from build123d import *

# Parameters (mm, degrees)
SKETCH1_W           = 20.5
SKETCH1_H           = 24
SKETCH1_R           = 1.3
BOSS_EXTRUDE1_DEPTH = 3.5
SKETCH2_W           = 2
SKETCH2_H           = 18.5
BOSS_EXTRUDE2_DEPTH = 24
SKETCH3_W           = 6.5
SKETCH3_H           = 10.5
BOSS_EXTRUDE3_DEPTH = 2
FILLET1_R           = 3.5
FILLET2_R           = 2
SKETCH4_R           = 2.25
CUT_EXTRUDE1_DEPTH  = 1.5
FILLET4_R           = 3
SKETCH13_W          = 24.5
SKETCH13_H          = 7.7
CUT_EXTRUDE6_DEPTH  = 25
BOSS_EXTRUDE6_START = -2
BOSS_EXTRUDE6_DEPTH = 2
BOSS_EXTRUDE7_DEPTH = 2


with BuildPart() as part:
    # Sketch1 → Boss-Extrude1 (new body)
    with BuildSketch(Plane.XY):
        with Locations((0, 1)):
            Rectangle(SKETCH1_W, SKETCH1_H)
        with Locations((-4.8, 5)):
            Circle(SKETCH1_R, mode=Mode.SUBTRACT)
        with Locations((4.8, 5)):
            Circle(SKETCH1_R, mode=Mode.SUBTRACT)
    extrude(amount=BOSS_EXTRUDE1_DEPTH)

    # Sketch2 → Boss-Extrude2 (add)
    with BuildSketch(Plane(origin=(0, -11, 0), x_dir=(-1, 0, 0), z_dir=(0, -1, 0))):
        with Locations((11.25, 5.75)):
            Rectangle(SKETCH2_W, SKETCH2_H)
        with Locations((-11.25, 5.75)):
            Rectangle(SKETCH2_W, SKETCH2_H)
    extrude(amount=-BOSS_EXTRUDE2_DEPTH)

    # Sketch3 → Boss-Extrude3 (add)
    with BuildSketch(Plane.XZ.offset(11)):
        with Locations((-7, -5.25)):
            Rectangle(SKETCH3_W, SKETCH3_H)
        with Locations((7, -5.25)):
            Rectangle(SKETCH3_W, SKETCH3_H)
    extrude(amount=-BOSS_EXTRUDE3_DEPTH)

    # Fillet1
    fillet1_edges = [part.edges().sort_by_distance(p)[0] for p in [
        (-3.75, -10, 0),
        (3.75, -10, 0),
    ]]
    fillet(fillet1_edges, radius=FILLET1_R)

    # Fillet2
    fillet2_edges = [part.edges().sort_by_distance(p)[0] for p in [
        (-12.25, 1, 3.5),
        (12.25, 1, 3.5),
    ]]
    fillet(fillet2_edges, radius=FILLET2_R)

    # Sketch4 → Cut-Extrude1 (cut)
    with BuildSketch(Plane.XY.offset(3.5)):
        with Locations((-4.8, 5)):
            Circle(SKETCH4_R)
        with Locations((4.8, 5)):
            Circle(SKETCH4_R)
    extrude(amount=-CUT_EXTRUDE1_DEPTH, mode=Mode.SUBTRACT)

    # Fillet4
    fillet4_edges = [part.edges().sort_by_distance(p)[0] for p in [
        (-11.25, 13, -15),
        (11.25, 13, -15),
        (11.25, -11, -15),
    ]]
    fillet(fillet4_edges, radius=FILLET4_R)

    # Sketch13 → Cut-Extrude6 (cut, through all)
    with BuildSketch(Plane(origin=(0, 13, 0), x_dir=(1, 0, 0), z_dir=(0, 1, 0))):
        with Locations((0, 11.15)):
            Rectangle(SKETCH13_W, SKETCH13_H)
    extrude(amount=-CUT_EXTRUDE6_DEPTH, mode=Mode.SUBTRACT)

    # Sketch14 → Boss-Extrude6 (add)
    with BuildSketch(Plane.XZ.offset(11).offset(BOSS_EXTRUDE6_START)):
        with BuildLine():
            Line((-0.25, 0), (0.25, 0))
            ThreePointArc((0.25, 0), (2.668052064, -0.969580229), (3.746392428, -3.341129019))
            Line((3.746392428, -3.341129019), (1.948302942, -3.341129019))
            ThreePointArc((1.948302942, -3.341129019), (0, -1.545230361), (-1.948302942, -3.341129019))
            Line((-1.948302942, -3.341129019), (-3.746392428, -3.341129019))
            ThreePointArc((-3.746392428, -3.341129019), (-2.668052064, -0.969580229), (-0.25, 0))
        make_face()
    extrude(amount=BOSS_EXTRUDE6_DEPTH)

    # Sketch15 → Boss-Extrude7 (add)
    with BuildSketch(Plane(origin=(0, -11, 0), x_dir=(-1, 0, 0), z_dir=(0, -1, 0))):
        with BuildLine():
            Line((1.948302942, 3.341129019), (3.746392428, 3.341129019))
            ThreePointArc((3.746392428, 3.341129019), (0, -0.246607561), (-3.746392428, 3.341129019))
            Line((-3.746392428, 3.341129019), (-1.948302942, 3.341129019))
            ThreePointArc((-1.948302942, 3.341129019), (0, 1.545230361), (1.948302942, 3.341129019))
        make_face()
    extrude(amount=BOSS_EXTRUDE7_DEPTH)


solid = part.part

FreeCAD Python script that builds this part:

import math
import FreeCAD as App
import Part
import Sketcher
from FreeCAD import Vector
Q = App.Units.Quantity


def edges_at(feature, points):
    """Names of the edges that pass closest to the given points."""
    edges = feature.Shape.Edges
    near = lambda p: min(range(len(edges)), key=lambda i: edges[i].distToShape(Part.Vertex(*p))[0])
    return sorted({f"Edge{near(p) + 1}" for p in points})

doc = App.newDocument("Part")
body = doc.addObject("PartDesign::Body", "Body")

# Sketch on XY plane
sketch1 = doc.addObject("Sketcher::SketchObject", "Sketch")
body.addObject(sketch1)
sketch1.AttachmentSupport = (doc.XY_Plane, [""])
sketch1.MapMode = "FlatFace"
sketch1.addGeometry(Part.LineSegment(Vector(-10.2, 13, 0), Vector(-10.2, -11, 0)), False)
sketch1.addGeometry(Part.LineSegment(Vector(-10.2, -11, 0), Vector(10.2, -11, 0)), False)
sketch1.addGeometry(Part.LineSegment(Vector(10.2, -11, 0), Vector(10.2, 13, 0)), False)
sketch1.addGeometry(Part.LineSegment(Vector(10.2, 13, 0), Vector(-10.2, 13, 0)), False)
sketch1.addGeometry(Part.Circle(Vector(-4.8, 5, 0), Vector(0, 0, 1), 1.3), False)
sketch1.addGeometry(Part.Circle(Vector(4.8, 5, 0), Vector(0, 0, 1), 1.3), False)
sketch1.addConstraint(Sketcher.Constraint("Coincident", 0, 2, 1, 1))
sketch1.addConstraint(Sketcher.Constraint("Coincident", 1, 2, 2, 1))
sketch1.addConstraint(Sketcher.Constraint("Coincident", 2, 2, 3, 1))
sketch1.addConstraint(Sketcher.Constraint("Coincident", 3, 2, 0, 1))
sketch1.addConstraint(Sketcher.Constraint("Vertical", 0))
sketch1.addConstraint(Sketcher.Constraint("Horizontal", 1))
sketch1.addConstraint(Sketcher.Constraint("Vertical", 2))
sketch1.addConstraint(Sketcher.Constraint("Horizontal", 3))
sketch1.addConstraint(Sketcher.Constraint("Equal", 4, 5))
sketch1.addConstraint(Sketcher.Constraint("Symmetric", 4, 3, 5, 3, -2))
sketch1.addConstraint(Sketcher.Constraint("Diameter", 4, Q("2.6 mm")))
sketch1.addConstraint(Sketcher.Constraint("DistanceY", 0, 2, 0, 1, Q("24 mm")))
sketch1.addConstraint(Sketcher.Constraint("DistanceX", 1, 1, 1, 2, Q("20.5 mm")))
sketch1.addConstraint(Sketcher.Constraint("DistanceY", -1, 1, 4, 3, Q("5 mm")))
sketch1.addConstraint(Sketcher.Constraint("DistanceY", 0, 2, -1, 1, Q("11 mm")))
sketch1.addConstraint(Sketcher.Constraint("DistanceX", 4, 3, -1, 1, Q("4.8 mm")))
sketch1.addConstraint(Sketcher.Constraint("DistanceX", 0, 2, -1, 1, Q("10.25 mm")))
pad1 = doc.addObject("PartDesign::Pad", "Pad")
body.addObject(pad1)
pad1.Profile = sketch1
pad1.Length = 3.5

# Sketch on XZ plane
sketch2 = doc.addObject("Sketcher::SketchObject", "Sketch001")
body.addObject(sketch2)
sketch2.AttachmentSupport = (doc.XZ_Plane, [""])
sketch2.MapMode = "FlatFace"
sketch2.AttachmentOffset = App.Placement(Vector(0, 0, 11), App.Rotation())
sketch2.addGeometry(Part.LineSegment(Vector(-10.2, -15, 0), Vector(-10.2, 3.5, 0)), False)
sketch2.addGeometry(Part.LineSegment(Vector(-10.2, 3.5, 0), Vector(-12.2, 3.5, 0)), False)
sketch2.addGeometry(Part.LineSegment(Vector(-12.2, 3.5, 0), Vector(-12.2, -15, 0)), False)
sketch2.addGeometry(Part.LineSegment(Vector(-12.2, -15, 0), Vector(-10.2, -15, 0)), False)
sketch2.addGeometry(Part.LineSegment(Vector(12.2, -15, 0), Vector(12.2, 3.5, 0)), False)
sketch2.addGeometry(Part.LineSegment(Vector(12.2, 3.5, 0), Vector(10.2, 3.5, 0)), False)
sketch2.addGeometry(Part.LineSegment(Vector(10.2, 3.5, 0), Vector(10.2, -15, 0)), False)
sketch2.addGeometry(Part.LineSegment(Vector(10.2, -15, 0), Vector(12.2, -15, 0)), False)
sketch2.addConstraint(Sketcher.Constraint("Coincident", 0, 2, 1, 1))
sketch2.addConstraint(Sketcher.Constraint("Coincident", 1, 2, 2, 1))
sketch2.addConstraint(Sketcher.Constraint("Coincident", 2, 2, 3, 1))
sketch2.addConstraint(Sketcher.Constraint("Coincident", 3, 2, 0, 1))
sketch2.addConstraint(Sketcher.Constraint("Coincident", 4, 2, 5, 1))
sketch2.addConstraint(Sketcher.Constraint("Coincident", 5, 2, 6, 1))
sketch2.addConstraint(Sketcher.Constraint("Coincident", 6, 2, 7, 1))
sketch2.addConstraint(Sketcher.Constraint("Coincident", 7, 2, 4, 1))
sketch2.addConstraint(Sketcher.Constraint("Vertical", 0))
sketch2.addConstraint(Sketcher.Constraint("Horizontal", 1))
sketch2.addConstraint(Sketcher.Constraint("Vertical", 2))
sketch2.addConstraint(Sketcher.Constraint("Horizontal", 3))
sketch2.addConstraint(Sketcher.Constraint("Vertical", 4))
sketch2.addConstraint(Sketcher.Constraint("Horizontal", 5))
sketch2.addConstraint(Sketcher.Constraint("Vertical", 6))
sketch2.addConstraint(Sketcher.Constraint("Horizontal", 7))
sketch2.addConstraint(Sketcher.Constraint("Symmetric", 1, 2, 4, 2, -2))
sketch2.addConstraint(Sketcher.Constraint("Symmetric", 3, 2, 6, 2, -2))
sketch2.addConstraint(Sketcher.Constraint("DistanceX", 1, 2, 1, 1, Q("2 mm")))
sketch2.addConstraint(Sketcher.Constraint("DistanceY", 0, 1, 0, 2, Q("18.5 mm")))
sketch2.addConstraint(Sketcher.Constraint("DistanceY", 2, 2, -1, 1, Q("15 mm")))
sketch2.addConstraint(Sketcher.Constraint("DistanceX", 0, 2, 4, 2, Q("22.5 mm")))
pad2 = doc.addObject("PartDesign::Pad", "Pad001")
body.addObject(pad2)
pad2.Profile = sketch2
pad2.Length = 24
pad2.Reversed = True

# Sketch on XZ plane
sketch3 = doc.addObject("Sketcher::SketchObject", "Sketch002")
body.addObject(sketch3)
sketch3.AttachmentSupport = (doc.XZ_Plane, [""])
sketch3.MapMode = "FlatFace"
sketch3.AttachmentOffset = App.Placement(Vector(0, 0, 11), App.Rotation())
sketch3.addGeometry(Part.LineSegment(Vector(-10, 0, 0), Vector(-10, -10, 0)), False)
sketch3.addGeometry(Part.LineSegment(Vector(-10, -10, 0), Vector(-4, -10, 0)), False)
sketch3.addGeometry(Part.LineSegment(Vector(-4, -10, 0), Vector(-4, 0, 0)), False)
sketch3.addGeometry(Part.LineSegment(Vector(-4, 0, 0), Vector(-10, 0, 0)), False)
sketch3.addGeometry(Part.LineSegment(Vector(4, 0, 0), Vector(4, -10, 0)), False)
sketch3.addGeometry(Part.LineSegment(Vector(4, -10, 0), Vector(10, -10, 0)), False)
sketch3.addGeometry(Part.LineSegment(Vector(10, -10, 0), Vector(10, 0, 0)), False)
sketch3.addGeometry(Part.LineSegment(Vector(10, 0, 0), Vector(4, 0, 0)), False)
sketch3.addConstraint(Sketcher.Constraint("Coincident", 0, 2, 1, 1))
sketch3.addConstraint(Sketcher.Constraint("Coincident", 1, 2, 2, 1))
sketch3.addConstraint(Sketcher.Constraint("Coincident", 2, 2, 3, 1))
sketch3.addConstraint(Sketcher.Constraint("Coincident", 3, 2, 0, 1))
sketch3.addConstraint(Sketcher.Constraint("Coincident", 4, 2, 5, 1))
sketch3.addConstraint(Sketcher.Constraint("Coincident", 5, 2, 6, 1))
sketch3.addConstraint(Sketcher.Constraint("Coincident", 6, 2, 7, 1))
sketch3.addConstraint(Sketcher.Constraint("Coincident", 7, 2, 4, 1))
sketch3.addConstraint(Sketcher.Constraint("Vertical", 0))
sketch3.addConstraint(Sketcher.Constraint("Horizontal", 1))
sketch3.addConstraint(Sketcher.Constraint("Vertical", 2))
sketch3.addConstraint(Sketcher.Constraint("Horizontal", 3))
sketch3.addConstraint(Sketcher.Constraint("Vertical", 4))
sketch3.addConstraint(Sketcher.Constraint("Horizontal", 5))
sketch3.addConstraint(Sketcher.Constraint("Vertical", 6))
sketch3.addConstraint(Sketcher.Constraint("Horizontal", 7))
sketch3.addConstraint(Sketcher.Constraint("Symmetric", 3, 2, 6, 2, -1, 1))
sketch3.addConstraint(Sketcher.Constraint("Symmetric", 1, 2, 4, 2, -2))
sketch3.addConstraint(Sketcher.Constraint("PointOnObject", 2, 2, -1))
sketch3.addConstraint(Sketcher.Constraint("DistanceX", 1, 1, 1, 2, Q("6.5 mm")))
sketch3.addConstraint(Sketcher.Constraint("DistanceY", 0, 2, 0, 1, Q("10.5 mm")))
sketch3.addConstraint(Sketcher.Constraint("DistanceX", 0, 2, 4, 2, Q("14 mm")))
pad3 = doc.addObject("PartDesign::Pad", "Pad002")
body.addObject(pad3)
pad3.Profile = sketch3
pad3.Length = 2
pad3.Reversed = True
doc.recompute()

fillet = doc.addObject("PartDesign::Fillet", "Fillet")
body.addObject(fillet)
fillet.Base = (pad3, edges_at(pad3, [(-3.75, -10, 0), (3.75, -10, 0)]))
fillet.Radius = 3.5
doc.recompute()

fillet2 = doc.addObject("PartDesign::Fillet", "Fillet001")
body.addObject(fillet2)
fillet2.Base = (fillet, edges_at(fillet, [(-12.25, 1, 3.5), (12.25, 1, 3.5)]))
fillet2.Radius = 2

# Sketch on XY plane
sketch4 = doc.addObject("Sketcher::SketchObject", "Sketch003")
body.addObject(sketch4)
sketch4.AttachmentSupport = (doc.XY_Plane, [""])
sketch4.MapMode = "FlatFace"
sketch4.AttachmentOffset = App.Placement(Vector(0, 0, 3.5), App.Rotation())
sketch4.addGeometry(Part.Circle(Vector(-4.8, 5, 0), Vector(0, 0, 1), 2.2), False)
sketch4.addGeometry(Part.Circle(Vector(4.8, 5, 0), Vector(0, 0, 1), 2.2), False)
sketch4.addConstraint(Sketcher.Constraint("Equal", 0, 1))
sketch4.addConstraint(Sketcher.Constraint("Symmetric", 0, 3, 1, 3, -2))
sketch4.addConstraint(Sketcher.Constraint("Diameter", 0, Q("4.5 mm")))
sketch4.addConstraint(Sketcher.Constraint("DistanceY", -1, 1, 0, 3, Q("5 mm")))
sketch4.addConstraint(Sketcher.Constraint("DistanceX", 0, 3, -1, 1, Q("4.8 mm")))
pocket1 = doc.addObject("PartDesign::Pocket", "Pocket")
body.addObject(pocket1)
pocket1.Profile = sketch4
pocket1.Length = 1.5
doc.recompute()

fillet3 = doc.addObject("PartDesign::Fillet", "Fillet002")
body.addObject(fillet3)
fillet3.Base = (pocket1, edges_at(pocket1, [(-11.25, 13, -15), (11.25, 13, -15), (11.25, -11, -15)]))
fillet3.Radius = 3

# Sketch on XZ plane
sketch5 = doc.addObject("Sketcher::SketchObject", "Sketch004")
body.addObject(sketch5)
sketch5.AttachmentSupport = (doc.XZ_Plane, [""])
sketch5.MapMode = "FlatFace"
sketch5.AttachmentOffset = App.Placement(Vector(0, 0, -13), App.Rotation())
sketch5.addGeometry(Part.LineSegment(Vector(-12, -15, 0), Vector(-12, -7, 0)), False)
sketch5.addGeometry(Part.LineSegment(Vector(-12, -7, 0), Vector(12, -7, 0)), False)
sketch5.addGeometry(Part.LineSegment(Vector(12, -7, 0), Vector(12, -15, 0)), False)
sketch5.addGeometry(Part.LineSegment(Vector(12, -15, 0), Vector(-12, -15, 0)), False)
sketch5.addConstraint(Sketcher.Constraint("Coincident", 0, 2, 1, 1))
sketch5.addConstraint(Sketcher.Constraint("Coincident", 1, 2, 2, 1))
sketch5.addConstraint(Sketcher.Constraint("Coincident", 2, 2, 3, 1))
sketch5.addConstraint(Sketcher.Constraint("Coincident", 3, 2, 0, 1))
sketch5.addConstraint(Sketcher.Constraint("Vertical", 0))
sketch5.addConstraint(Sketcher.Constraint("Horizontal", 1))
sketch5.addConstraint(Sketcher.Constraint("Vertical", 2))
sketch5.addConstraint(Sketcher.Constraint("Horizontal", 3))
sketch5.addConstraint(Sketcher.Constraint("DistanceX", 1, 1, 1, 2, Q("24.5 mm")))
sketch5.addConstraint(Sketcher.Constraint("DistanceY", 0, 1, 0, 2, Q("7.7 mm")))
sketch5.addConstraint(Sketcher.Constraint("DistanceY", 2, 2, -1, 1, Q("15 mm")))
sketch5.addConstraint(Sketcher.Constraint("DistanceX", 0, 2, -1, 1, Q("12.25 mm")))
pocket2 = doc.addObject("PartDesign::Pocket", "Pocket001")
body.addObject(pocket2)
pocket2.Profile = sketch5
pocket2.Type = "ThroughAll"
pocket2.Reversed = True

# Sketch on XZ plane
sketch6 = doc.addObject("Sketcher::SketchObject", "Sketch005")
body.addObject(sketch6)
sketch6.AttachmentSupport = (doc.XZ_Plane, [""])
sketch6.MapMode = "FlatFace"
sketch6.AttachmentOffset = App.Placement(Vector(0, 0, 9), App.Rotation())
sketch6.addGeometry(Part.LineSegment(Vector(0.2, 0, 0), Vector(-0.2, 0, 0)), False)
sketch6.addGeometry(Part.ArcOfCircle(Part.Circle(Vector(-0.3, -3.5, 0), Vector(0, 0, 1), 3.5), math.radians(90), math.radians(177)), False)
sketch6.addGeometry(Part.LineSegment(Vector(-3.7, -3.3, 0), Vector(-1.9, -3.3, 0)), False)
sketch6.addGeometry(Part.ArcOfCircle(Part.Circle(Vector(0, -3.5, 0), Vector(0, 0, 1), 2), math.radians(5), math.radians(175)), False)
sketch6.addGeometry(Part.LineSegment(Vector(1.9, -3.3, 0), Vector(3.7, -3.3, 0)), False)
sketch6.addGeometry(Part.ArcOfCircle(Part.Circle(Vector(0.3, -3.5, 0), Vector(0, 0, 1), 3.5), math.radians(3), math.radians(90)), False)
sketch6.addConstraint(Sketcher.Constraint("Tangent", 0, 2, 1, 1))
sketch6.addConstraint(Sketcher.Constraint("Coincident", 1, 2, 2, 1))
sketch6.addConstraint(Sketcher.Constraint("Coincident", 2, 2, 3, 2))
sketch6.addConstraint(Sketcher.Constraint("Coincident", 3, 1, 4, 1))
sketch6.addConstraint(Sketcher.Constraint("Coincident", 4, 2, 5, 1))
sketch6.addConstraint(Sketcher.Constraint("Tangent", 5, 2, 0, 1))
sketch6.addConstraint(Sketcher.Constraint("Horizontal", 0))
sketch6.addConstraint(Sketcher.Constraint("Horizontal", 2))
sketch6.addConstraint(Sketcher.Constraint("Horizontal", 4))
sketch6.addConstraint(Sketcher.Constraint("Equal", 1, 5))
sketch6.addConstraint(Sketcher.Constraint("Symmetric", 0, 2, 5, 2, -1, 1))
sketch6.addConstraint(Sketcher.Constraint("Symmetric", 2, 2, 3, 1, -2))
sketch6.addConstraint(Sketcher.Constraint("Horizontal", 1, 3, 3, 3))
sketch6.addConstraint(Sketcher.Constraint("Radius", 1, Q("3.5 mm")))
sketch6.addConstraint(Sketcher.Constraint("DistanceX", 0, 2, 0, 1, Q("0.5 mm")))
sketch6.addConstraint(Sketcher.Constraint("Radius", 3, Q("1.95477 mm")))
sketch6.addConstraint(Sketcher.Constraint("DistanceX", 2, 1, 2, 2, Q("1.798089 mm")))
pad4 = doc.addObject("PartDesign::Pad", "Pad003")
body.addObject(pad4)
pad4.Profile = sketch6
pad4.Length = 2

# Sketch on XZ plane
sketch7 = doc.addObject("Sketcher::SketchObject", "Sketch006")
body.addObject(sketch7)
sketch7.AttachmentSupport = (doc.XZ_Plane, [""])
sketch7.MapMode = "FlatFace"
sketch7.AttachmentOffset = App.Placement(Vector(0, 0, 11), App.Rotation())
sketch7.addGeometry(Part.LineSegment(Vector(-3.7, -3.3, 0), Vector(-1.9, -3.3, 0)), False)
sketch7.addGeometry(Part.ArcOfCircle(Part.Circle(Vector(0, -3.5, 0), Vector(0, 0, 1), 2), math.radians(5), math.radians(175)), False)
sketch7.addGeometry(Part.LineSegment(Vector(1.9, -3.3, 0), Vector(3.7, -3.3, 0)), False)
sketch7.addGeometry(Part.ArcOfCircle(Part.Circle(Vector(0, -3.5, 0), Vector(0, 0, 1), 3.7), math.radians(2), math.radians(178)), False)
sketch7.addConstraint(Sketcher.Constraint("Coincident", 0, 2, 1, 2))
sketch7.addConstraint(Sketcher.Constraint("Coincident", 1, 1, 2, 1))
sketch7.addConstraint(Sketcher.Constraint("Coincident", 2, 2, 3, 1))
sketch7.addConstraint(Sketcher.Constraint("Coincident", 3, 2, 0, 1))
sketch7.addConstraint(Sketcher.Constraint("Horizontal", 0))
sketch7.addConstraint(Sketcher.Constraint("Horizontal", 2))
sketch7.addConstraint(Sketcher.Constraint("Symmetric", 0, 2, 1, 1, -2))
sketch7.addConstraint(Sketcher.Constraint("PointOnObject", 3, 3, -2))
sketch7.addConstraint(Sketcher.Constraint("DistanceY", 1, 3, -1, 1, Q("3.5 mm")))
sketch7.addConstraint(Sketcher.Constraint("Radius", 3, Q("3.7499 mm")))
sketch7.addConstraint(Sketcher.Constraint("Radius", 1, Q("1.95477 mm")))
sketch7.addConstraint(Sketcher.Constraint("DistanceX", 0, 1, 0, 2, Q("1.798089 mm")))
sketch7.addConstraint(Sketcher.Constraint("DistanceY", 0, 2, -1, 1, Q("3.341129 mm")))
pad5 = doc.addObject("PartDesign::Pad", "Pad004")
body.addObject(pad5)
pad5.Profile = sketch7
pad5.Length = 2

doc.recompute()
